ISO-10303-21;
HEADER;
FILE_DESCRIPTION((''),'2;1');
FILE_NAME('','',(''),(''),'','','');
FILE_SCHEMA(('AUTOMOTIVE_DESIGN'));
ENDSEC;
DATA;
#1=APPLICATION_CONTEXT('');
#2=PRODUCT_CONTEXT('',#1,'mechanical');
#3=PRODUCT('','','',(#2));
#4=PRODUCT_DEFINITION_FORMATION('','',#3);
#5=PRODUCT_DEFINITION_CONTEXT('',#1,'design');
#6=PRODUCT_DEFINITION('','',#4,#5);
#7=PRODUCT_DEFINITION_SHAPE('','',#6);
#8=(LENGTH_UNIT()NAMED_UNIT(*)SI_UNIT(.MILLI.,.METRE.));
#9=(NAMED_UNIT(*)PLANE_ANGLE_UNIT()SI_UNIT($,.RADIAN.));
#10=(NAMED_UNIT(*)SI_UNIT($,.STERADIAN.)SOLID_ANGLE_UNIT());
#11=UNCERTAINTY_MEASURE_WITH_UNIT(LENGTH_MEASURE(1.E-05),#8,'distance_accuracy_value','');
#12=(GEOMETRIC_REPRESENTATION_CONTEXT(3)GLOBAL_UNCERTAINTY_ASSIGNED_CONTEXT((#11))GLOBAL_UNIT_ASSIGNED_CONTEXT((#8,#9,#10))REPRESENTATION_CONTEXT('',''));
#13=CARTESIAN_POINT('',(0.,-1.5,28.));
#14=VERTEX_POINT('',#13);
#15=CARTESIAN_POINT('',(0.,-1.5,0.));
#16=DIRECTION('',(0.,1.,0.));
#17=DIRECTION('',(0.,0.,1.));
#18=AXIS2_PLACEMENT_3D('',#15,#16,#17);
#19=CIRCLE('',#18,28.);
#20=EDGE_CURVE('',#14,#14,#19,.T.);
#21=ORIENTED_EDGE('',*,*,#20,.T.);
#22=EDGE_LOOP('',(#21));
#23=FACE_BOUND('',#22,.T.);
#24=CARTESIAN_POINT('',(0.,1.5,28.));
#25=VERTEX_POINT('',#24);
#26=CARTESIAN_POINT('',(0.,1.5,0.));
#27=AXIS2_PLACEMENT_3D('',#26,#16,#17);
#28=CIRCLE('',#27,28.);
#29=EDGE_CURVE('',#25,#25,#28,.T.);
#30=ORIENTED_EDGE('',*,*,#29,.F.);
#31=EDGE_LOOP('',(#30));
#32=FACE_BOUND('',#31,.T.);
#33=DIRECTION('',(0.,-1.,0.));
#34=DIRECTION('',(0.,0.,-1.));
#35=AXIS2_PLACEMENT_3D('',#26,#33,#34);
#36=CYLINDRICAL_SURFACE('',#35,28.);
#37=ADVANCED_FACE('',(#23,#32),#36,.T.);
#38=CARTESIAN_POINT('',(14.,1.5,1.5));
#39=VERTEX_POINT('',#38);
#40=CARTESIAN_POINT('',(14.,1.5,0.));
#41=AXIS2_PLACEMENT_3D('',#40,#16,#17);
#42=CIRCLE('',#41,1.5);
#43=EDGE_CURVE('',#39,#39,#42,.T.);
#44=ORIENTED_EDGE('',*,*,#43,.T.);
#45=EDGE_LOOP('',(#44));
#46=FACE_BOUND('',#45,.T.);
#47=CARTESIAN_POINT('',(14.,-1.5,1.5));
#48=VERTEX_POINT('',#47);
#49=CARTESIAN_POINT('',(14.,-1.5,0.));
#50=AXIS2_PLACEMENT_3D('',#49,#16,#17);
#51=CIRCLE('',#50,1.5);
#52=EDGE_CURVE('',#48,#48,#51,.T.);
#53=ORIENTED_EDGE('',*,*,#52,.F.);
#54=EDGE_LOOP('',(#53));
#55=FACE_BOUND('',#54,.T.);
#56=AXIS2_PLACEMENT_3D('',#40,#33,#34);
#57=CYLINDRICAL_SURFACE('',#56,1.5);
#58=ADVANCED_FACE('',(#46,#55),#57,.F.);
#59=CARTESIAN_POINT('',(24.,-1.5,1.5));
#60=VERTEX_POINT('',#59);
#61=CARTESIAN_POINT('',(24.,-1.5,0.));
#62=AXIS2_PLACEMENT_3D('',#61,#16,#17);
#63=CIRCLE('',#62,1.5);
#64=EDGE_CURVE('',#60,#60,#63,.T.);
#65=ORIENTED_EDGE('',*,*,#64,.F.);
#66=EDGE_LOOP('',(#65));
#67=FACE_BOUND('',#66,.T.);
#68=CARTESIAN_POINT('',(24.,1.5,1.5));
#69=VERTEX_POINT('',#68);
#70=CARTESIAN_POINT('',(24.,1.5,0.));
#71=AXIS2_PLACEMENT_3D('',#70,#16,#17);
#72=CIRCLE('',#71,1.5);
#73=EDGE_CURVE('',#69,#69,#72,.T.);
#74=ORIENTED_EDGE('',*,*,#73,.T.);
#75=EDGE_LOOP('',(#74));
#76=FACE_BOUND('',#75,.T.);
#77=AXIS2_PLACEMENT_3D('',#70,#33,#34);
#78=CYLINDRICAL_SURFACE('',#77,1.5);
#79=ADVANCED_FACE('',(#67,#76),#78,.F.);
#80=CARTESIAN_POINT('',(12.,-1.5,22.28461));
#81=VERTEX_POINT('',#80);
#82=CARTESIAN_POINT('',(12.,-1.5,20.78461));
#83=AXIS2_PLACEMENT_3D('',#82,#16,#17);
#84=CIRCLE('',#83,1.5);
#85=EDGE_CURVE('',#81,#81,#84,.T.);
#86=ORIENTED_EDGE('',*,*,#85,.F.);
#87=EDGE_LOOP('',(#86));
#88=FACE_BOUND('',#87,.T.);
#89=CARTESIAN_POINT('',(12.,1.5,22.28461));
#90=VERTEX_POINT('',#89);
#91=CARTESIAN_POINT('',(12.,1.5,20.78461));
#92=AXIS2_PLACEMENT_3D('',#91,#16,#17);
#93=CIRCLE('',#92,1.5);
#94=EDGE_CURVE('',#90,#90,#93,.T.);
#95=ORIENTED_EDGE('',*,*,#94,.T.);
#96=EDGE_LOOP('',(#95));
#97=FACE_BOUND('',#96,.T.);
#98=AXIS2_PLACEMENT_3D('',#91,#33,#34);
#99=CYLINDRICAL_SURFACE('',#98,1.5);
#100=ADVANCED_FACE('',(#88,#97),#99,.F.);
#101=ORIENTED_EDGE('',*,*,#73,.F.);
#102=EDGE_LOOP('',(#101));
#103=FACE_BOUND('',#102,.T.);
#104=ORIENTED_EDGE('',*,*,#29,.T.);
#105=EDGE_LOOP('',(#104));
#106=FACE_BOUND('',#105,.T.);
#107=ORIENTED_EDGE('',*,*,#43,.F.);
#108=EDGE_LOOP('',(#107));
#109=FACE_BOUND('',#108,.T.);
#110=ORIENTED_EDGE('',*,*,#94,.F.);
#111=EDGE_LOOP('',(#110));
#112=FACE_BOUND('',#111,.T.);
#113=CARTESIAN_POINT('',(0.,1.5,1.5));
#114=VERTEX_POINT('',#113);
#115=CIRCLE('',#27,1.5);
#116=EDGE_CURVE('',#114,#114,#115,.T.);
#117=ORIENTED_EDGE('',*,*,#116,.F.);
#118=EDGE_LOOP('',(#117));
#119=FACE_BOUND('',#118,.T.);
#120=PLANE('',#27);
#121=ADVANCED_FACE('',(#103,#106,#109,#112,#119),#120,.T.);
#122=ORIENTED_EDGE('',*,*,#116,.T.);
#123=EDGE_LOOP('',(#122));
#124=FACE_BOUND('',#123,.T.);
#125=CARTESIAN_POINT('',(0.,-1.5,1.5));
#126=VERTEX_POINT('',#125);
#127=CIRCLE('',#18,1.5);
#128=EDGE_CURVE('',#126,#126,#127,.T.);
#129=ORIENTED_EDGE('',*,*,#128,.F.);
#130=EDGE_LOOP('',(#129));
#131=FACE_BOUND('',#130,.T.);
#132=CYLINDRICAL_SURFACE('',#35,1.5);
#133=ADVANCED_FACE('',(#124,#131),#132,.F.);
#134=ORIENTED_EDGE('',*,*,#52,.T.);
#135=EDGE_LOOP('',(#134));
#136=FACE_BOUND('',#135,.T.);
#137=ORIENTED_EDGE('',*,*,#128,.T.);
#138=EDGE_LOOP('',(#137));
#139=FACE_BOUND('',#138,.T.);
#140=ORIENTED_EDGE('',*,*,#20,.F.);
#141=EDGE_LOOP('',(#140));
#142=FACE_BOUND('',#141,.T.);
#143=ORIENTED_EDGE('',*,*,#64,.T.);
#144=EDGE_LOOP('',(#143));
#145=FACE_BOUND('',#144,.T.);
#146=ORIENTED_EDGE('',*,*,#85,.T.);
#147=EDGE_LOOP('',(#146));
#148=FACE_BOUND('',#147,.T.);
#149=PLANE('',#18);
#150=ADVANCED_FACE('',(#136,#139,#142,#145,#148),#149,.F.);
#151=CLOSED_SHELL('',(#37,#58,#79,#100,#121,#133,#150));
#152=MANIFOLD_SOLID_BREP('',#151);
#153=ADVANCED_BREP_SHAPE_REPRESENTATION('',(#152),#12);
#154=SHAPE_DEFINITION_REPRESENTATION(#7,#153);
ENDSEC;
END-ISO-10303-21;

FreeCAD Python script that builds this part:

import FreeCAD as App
import Part
import Sketcher

doc = App.newDocument("Part")
body = doc.addObject("PartDesign::Body", "Body")

# Sketch on XZ plane
sketch1 = body.newObject("Sketcher::SketchObject", "Sketch")
sketch1.AttachmentSupport = (doc.getObject("XZ_Plane"), [""])
sketch1.MapMode = "FlatFace"
sketch1.addGeometry([
    Part.Circle(App.Vector(0, 0, 0), App.Vector(0, 0, 1), 28),  # 0
    Part.Circle(App.Vector(0, 0, 0), App.Vector(0, 0, 1), 1.5),  # 1
    Part.Circle(App.Vector(14, 0, 0), App.Vector(0, 0, 1), 1.5),  # 2
    Part.Circle(App.Vector(24, 0, 0), App.Vector(0, 0, 1), 1.5),  # 3
    Part.Circle(App.Vector(12, 20.78461, 0), App.Vector(0, 0, 1), 1.5),  # 4
], False)
sketch1.addConstraint([
    Sketcher.Constraint("Coincident", 0, 3, -1, 1),
    Sketcher.Constraint("Coincident", 1, 3, -1, 1),
    Sketcher.Constraint("Equal", 1, 2),
    Sketcher.Constraint("Equal", 2, 3),
    Sketcher.Constraint("Equal", 3, 4),
    Sketcher.Constraint("PointOnObject", 2, 3, -1),
    Sketcher.Constraint("PointOnObject", 3, 3, -1),
    Sketcher.Constraint("Diameter", 0, 56.0),
    Sketcher.Constraint("Diameter", 1, 3.0),
    Sketcher.Constraint("DistanceX", -1, 1, 2, 3, 14.0),
    Sketcher.Constraint("DistanceX", -1, 1, 3, 3, 24.0),
    Sketcher.Constraint("DistanceX", -1, 1, 4, 3, 12.0),
    Sketcher.Constraint("DistanceY", -1, 1, 4, 3, 20.78461),
])
pad1 = body.newObject("PartDesign::Pad", "Pad")
pad1.Profile = sketch1
pad1.Length = 3
pad1.Midplane = True

doc.recompute()
